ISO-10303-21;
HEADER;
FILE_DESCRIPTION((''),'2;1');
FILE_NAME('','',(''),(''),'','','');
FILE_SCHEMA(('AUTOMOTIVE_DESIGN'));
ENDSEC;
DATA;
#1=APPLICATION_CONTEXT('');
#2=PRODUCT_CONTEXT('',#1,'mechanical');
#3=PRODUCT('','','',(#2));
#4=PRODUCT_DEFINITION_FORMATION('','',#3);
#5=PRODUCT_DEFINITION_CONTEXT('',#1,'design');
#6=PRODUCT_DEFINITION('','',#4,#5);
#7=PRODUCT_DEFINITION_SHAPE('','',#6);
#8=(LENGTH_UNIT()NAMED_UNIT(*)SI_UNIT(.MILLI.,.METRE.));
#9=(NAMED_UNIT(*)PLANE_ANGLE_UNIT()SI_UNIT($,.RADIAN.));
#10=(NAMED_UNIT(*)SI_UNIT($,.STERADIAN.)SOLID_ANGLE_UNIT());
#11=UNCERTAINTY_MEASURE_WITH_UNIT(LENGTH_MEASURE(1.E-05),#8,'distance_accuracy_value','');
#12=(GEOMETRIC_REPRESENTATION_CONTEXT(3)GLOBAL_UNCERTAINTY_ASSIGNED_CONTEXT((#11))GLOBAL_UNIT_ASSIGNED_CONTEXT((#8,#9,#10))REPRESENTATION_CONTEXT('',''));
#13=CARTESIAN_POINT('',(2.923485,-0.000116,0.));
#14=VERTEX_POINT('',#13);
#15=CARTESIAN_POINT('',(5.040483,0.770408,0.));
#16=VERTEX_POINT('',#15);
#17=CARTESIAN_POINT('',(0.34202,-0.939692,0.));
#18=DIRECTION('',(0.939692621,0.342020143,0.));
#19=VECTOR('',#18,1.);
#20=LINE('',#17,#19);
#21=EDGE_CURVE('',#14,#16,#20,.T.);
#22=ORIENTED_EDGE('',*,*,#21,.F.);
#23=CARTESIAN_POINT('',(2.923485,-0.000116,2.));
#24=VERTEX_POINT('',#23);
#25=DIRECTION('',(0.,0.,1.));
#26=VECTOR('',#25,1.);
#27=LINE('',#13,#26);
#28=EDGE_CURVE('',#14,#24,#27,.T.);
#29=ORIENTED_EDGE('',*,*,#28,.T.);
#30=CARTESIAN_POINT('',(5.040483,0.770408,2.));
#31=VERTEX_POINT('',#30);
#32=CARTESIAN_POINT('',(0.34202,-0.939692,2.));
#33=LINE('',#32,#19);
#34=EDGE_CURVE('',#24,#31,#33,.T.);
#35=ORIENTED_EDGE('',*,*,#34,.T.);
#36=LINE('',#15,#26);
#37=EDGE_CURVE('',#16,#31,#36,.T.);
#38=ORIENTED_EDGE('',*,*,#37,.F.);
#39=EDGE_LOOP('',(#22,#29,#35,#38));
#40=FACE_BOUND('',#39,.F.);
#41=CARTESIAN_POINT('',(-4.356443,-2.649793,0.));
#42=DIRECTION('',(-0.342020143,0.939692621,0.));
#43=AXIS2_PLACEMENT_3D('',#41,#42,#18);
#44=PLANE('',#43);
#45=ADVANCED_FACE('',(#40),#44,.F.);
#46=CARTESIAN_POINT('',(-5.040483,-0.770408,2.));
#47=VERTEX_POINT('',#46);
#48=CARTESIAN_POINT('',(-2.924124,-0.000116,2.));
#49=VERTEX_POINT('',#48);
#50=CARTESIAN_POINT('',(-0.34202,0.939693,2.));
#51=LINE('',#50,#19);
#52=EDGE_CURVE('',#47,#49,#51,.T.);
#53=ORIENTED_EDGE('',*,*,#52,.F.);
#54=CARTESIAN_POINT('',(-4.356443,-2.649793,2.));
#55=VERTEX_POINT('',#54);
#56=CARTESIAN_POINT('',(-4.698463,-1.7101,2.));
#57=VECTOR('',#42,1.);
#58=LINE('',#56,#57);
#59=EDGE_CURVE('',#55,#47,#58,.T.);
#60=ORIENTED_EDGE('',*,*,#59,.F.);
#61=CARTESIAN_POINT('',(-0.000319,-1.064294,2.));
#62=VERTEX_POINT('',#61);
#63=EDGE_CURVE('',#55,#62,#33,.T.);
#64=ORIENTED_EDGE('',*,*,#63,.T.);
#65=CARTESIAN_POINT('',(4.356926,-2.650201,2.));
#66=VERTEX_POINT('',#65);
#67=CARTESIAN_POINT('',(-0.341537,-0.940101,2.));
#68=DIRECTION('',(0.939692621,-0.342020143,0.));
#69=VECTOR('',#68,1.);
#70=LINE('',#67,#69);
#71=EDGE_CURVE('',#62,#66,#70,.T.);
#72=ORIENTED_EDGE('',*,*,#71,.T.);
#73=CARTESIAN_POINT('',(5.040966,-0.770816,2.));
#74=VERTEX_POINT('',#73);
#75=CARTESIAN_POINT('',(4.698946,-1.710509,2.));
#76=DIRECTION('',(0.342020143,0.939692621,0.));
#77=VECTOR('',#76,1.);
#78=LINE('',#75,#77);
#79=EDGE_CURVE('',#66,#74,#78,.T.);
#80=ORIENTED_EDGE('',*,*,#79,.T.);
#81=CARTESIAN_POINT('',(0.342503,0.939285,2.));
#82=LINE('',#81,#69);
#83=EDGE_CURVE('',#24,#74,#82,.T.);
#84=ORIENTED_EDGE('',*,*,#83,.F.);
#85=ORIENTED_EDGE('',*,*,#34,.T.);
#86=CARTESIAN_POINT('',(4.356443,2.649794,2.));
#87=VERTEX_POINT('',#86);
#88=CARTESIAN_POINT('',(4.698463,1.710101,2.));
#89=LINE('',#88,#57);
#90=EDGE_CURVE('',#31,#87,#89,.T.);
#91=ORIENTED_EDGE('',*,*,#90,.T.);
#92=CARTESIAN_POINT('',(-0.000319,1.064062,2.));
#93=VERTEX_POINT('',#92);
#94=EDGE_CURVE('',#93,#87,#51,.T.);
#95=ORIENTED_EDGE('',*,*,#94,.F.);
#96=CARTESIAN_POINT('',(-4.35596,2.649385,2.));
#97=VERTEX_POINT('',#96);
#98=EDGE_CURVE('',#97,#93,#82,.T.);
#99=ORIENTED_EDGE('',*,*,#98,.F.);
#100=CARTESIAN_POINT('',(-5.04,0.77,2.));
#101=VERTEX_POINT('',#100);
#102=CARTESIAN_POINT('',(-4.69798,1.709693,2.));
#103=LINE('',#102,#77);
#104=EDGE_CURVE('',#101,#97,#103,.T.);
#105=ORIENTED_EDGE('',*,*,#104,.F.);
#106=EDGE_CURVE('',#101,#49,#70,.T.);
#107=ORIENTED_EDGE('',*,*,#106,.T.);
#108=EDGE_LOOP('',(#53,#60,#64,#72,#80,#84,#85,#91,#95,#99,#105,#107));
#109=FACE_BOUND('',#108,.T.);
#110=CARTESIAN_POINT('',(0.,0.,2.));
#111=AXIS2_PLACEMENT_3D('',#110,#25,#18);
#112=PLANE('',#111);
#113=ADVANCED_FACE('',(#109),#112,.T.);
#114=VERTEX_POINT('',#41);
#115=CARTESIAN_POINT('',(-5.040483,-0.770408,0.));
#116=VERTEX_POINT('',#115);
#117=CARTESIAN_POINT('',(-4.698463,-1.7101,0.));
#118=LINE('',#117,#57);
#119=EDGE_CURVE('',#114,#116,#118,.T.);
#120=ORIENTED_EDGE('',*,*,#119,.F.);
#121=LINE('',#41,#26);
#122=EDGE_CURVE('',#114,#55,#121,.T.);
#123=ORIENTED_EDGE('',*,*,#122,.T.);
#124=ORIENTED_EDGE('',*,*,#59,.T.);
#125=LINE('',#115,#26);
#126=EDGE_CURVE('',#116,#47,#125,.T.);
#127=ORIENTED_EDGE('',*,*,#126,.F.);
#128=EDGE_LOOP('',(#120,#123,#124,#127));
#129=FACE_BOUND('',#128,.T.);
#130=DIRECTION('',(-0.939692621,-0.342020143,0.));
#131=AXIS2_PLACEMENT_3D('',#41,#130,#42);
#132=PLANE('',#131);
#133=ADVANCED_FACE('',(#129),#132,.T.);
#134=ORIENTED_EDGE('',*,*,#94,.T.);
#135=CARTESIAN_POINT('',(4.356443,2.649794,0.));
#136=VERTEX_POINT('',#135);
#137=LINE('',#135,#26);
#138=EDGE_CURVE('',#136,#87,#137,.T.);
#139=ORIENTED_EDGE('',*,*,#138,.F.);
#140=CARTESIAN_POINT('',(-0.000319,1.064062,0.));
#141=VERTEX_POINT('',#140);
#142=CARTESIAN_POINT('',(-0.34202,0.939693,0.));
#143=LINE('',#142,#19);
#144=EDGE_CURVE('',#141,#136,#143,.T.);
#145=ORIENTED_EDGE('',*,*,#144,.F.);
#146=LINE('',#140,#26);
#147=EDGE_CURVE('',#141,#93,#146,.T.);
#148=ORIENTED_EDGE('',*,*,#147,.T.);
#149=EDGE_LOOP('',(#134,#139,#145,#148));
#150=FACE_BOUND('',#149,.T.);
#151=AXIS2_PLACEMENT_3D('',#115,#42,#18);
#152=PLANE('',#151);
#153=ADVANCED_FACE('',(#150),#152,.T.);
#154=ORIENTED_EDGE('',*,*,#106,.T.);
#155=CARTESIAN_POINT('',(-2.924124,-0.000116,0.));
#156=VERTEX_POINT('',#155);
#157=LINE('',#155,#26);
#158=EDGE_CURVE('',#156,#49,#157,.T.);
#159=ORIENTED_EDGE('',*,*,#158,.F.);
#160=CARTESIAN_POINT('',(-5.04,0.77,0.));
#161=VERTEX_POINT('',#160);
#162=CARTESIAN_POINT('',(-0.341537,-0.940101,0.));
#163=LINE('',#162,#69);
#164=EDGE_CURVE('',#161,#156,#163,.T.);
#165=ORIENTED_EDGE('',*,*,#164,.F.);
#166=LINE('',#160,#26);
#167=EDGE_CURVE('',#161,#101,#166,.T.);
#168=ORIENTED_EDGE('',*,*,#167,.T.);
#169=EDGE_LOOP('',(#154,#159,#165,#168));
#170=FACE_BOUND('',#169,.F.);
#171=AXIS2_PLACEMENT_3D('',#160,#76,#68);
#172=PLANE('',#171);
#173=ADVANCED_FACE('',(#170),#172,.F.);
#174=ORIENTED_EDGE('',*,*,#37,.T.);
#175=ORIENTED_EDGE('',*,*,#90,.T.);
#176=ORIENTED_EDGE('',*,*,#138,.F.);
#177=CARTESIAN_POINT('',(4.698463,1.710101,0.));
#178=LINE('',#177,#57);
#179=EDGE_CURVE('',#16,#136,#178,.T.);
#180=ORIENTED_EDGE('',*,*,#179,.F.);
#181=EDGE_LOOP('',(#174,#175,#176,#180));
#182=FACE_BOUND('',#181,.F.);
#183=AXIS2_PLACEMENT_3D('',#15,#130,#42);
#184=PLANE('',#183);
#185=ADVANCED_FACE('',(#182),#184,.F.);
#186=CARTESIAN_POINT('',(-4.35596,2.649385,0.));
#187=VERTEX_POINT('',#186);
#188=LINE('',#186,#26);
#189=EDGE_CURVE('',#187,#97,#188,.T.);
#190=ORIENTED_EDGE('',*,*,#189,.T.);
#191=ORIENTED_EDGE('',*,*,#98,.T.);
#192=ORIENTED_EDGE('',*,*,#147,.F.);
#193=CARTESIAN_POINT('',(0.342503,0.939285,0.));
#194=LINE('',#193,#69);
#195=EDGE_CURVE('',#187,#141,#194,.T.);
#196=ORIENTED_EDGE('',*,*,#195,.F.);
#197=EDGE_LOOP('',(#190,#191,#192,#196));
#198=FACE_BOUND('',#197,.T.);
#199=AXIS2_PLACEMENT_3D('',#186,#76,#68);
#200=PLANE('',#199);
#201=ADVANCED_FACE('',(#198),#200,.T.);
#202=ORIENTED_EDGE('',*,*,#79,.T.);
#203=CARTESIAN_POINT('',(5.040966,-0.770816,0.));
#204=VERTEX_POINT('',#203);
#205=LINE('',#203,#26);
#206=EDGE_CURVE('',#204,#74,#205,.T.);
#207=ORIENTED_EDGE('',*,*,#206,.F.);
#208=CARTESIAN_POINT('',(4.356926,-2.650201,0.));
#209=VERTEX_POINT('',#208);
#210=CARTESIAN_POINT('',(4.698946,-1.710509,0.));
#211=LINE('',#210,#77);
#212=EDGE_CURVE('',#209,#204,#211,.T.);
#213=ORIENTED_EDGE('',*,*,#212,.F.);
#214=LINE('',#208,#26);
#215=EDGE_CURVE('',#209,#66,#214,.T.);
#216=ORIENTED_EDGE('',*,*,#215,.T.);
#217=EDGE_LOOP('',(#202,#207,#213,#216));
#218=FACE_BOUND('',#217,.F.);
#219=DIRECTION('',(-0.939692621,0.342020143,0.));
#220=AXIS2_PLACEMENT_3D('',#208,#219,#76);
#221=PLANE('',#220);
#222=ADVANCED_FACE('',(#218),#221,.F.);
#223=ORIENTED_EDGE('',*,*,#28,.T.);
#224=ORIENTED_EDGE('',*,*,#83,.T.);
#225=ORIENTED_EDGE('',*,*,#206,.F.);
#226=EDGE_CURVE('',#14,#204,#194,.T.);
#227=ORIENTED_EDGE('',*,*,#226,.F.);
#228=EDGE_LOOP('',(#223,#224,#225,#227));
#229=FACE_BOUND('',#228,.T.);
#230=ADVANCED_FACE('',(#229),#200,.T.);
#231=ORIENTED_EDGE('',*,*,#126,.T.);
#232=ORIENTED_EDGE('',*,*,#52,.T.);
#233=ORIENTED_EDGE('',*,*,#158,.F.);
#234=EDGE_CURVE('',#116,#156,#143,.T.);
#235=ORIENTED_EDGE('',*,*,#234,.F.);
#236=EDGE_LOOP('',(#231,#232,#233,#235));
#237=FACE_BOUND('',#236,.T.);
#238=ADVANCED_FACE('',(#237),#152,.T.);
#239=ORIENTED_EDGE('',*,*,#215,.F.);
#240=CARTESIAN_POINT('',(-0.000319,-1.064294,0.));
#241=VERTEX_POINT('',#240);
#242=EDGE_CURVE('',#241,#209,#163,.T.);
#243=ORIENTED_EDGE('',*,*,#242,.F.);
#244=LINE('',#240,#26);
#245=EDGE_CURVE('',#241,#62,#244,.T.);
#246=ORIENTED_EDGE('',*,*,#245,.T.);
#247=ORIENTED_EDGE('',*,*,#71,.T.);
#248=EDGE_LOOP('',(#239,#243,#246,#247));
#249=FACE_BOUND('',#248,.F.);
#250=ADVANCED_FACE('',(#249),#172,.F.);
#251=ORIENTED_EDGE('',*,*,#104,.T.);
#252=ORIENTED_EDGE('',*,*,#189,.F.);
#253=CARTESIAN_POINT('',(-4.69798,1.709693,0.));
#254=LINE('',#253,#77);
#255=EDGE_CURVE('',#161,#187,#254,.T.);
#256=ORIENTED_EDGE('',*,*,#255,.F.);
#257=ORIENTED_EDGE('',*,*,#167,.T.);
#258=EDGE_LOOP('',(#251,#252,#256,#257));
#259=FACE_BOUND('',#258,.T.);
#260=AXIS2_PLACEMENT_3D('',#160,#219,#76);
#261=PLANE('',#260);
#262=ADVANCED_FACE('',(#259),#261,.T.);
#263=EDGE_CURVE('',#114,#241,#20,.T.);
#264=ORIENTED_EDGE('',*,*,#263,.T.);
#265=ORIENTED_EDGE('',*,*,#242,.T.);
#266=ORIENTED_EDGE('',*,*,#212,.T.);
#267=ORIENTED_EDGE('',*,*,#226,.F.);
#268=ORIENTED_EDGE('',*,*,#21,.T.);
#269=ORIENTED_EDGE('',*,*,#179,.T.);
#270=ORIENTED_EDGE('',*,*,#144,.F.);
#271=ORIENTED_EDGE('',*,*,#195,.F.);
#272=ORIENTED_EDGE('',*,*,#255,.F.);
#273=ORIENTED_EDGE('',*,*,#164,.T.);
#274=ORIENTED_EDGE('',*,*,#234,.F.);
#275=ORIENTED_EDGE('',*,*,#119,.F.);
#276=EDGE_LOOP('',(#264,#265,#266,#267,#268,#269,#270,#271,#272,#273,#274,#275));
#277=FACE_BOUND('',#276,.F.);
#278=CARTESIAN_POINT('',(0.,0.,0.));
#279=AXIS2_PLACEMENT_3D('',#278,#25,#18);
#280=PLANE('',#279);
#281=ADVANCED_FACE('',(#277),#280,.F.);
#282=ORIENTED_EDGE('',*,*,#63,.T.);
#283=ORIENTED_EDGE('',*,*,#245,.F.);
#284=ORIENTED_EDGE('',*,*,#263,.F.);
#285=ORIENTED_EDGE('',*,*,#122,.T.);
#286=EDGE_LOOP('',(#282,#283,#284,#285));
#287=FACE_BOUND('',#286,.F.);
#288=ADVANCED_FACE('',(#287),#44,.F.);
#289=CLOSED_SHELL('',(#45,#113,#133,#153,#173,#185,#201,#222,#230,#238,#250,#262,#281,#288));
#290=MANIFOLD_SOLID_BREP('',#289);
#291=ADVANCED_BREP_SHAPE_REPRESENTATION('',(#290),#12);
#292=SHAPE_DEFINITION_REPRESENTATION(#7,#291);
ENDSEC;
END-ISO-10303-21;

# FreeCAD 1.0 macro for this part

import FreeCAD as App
import Part
import Sketcher

V = App.Vector
Q = App.Units.Quantity

doc = App.newDocument("Part")
body = doc.addObject("PartDesign::Body", "Body")

sketch1 = doc.addObject("Sketcher::SketchObject", "Sketch")
body.addObject(sketch1)
sketch1.AttachmentSupport = (doc.XY_Plane, [""])
sketch1.MapMode = "FlatFace"
sketch1.addGeometry([
    Part.LineSegment(V(0, 2, 0), V(0, 0, 0)),
    Part.LineSegment(V(0, 0, 0), V(10, 0, 0)),
    Part.LineSegment(V(10, 0, 0), V(10, 2, 0)),
    Part.LineSegment(V(10, 2, 0), V(0, 2, 0)),
], False)
sketch1.addConstraint([
    Sketcher.Constraint("Coincident", 0, 2, 1, 1),
    Sketcher.Constraint("Coincident", 1, 2, 2, 1),
    Sketcher.Constraint("Coincident", 2, 2, 3, 1),
    Sketcher.Constraint("Coincident", 3, 2, 0, 1),
    Sketcher.Constraint("Vertical", 0),
    Sketcher.Constraint("Horizontal", 1),
    Sketcher.Constraint("Vertical", 2),
    Sketcher.Constraint("Horizontal", 3),
    Sketcher.Constraint("Coincident", 0, 2, -1, 1),
    Sketcher.Constraint("DistanceX", 1, 1, 1, 2, Q("10 mm")),
    Sketcher.Constraint("DistanceY", 0, 2, 0, 1, Q("2 mm")),
])
pad1 = doc.addObject("PartDesign::Pad", "Pad")
body.addObject(pad1)
pad1.Profile = sketch1
pad1.Length = 2
body2 = doc.addObject("PartDesign::Body", "Body001")
doc.recompute()

body.Placement = App.Placement(V(0.643557, -1.649793, 0), App.Rotation(V(0, 0, 1), 20))
boolean = doc.addObject("PartDesign::Boolean", "Boolean")
body2.addObject(boolean)
boolean.Type = "Fuse"
boolean.addObjects([body])
body3 = doc.addObject("PartDesign::Body", "Body002")

sketch2 = doc.addObject("Sketcher::SketchObject", "Sketch001")
body3.addObject(sketch2)
sketch2.AttachmentSupport = (doc.getObject("XY_Plane002"), [""])
sketch2.MapMode = "FlatFace"
sketch2.addGeometry([
    Part.LineSegment(V(0, 2, 0), V(0, 0, 0)),
    Part.LineSegment(V(0, 0, 0), V(10, 0, 0)),
    Part.LineSegment(V(10, 0, 0), V(10, 2, 0)),
    Part.LineSegment(V(10, 2, 0), V(0, 2, 0)),
], False)
sketch2.addConstraint([
    Sketcher.Constraint("Coincident", 0, 2, 1, 1),
    Sketcher.Constraint("Coincident", 1, 2, 2, 1),
    Sketcher.Constraint("Coincident", 2, 2, 3, 1),
    Sketcher.Constraint("Coincident", 3, 2, 0, 1),
    Sketcher.Constraint("Vertical", 0),
    Sketcher.Constraint("Horizontal", 1),
    Sketcher.Constraint("Vertical", 2),
    Sketcher.Constraint("Horizontal", 3),
    Sketcher.Constraint("Coincident", 0, 2, -1, 1),
    Sketcher.Constraint("DistanceX", 1, 1, 1, 2, Q("10 mm")),
    Sketcher.Constraint("DistanceY", 0, 2, 0, 1, Q("2 mm")),
])
pad2 = doc.addObject("PartDesign::Pad", "Pad001")
body3.addObject(pad2)
pad2.Profile = sketch2
pad2.Length = 2
body4 = doc.addObject("PartDesign::Body", "Body003")
doc.recompute()

body3.Placement = App.Placement(V(-0.04, 1.77, 0), App.Rotation(V(0, 0, -1), 20))
boolean2 = doc.addObject("PartDesign::Boolean", "Boolean001")
body4.addObject(boolean2)
boolean2.Type = "Fuse"
boolean2.addObjects([body3])
doc.recompute()

boolean3 = doc.addObject("PartDesign::Boolean", "Boolean002")
body4.addObject(boolean3)
boolean3.Type = "Fuse"
boolean3.addObjects([body2])
body5 = doc.addObject("PartDesign::Body", "Body004")
doc.recompute()

body4.Placement = App.Placement(V(-5, -1, 0), App.Rotation(V(0, 0, 1), 0))
boolean4 = doc.addObject("PartDesign::Boolean", "Boolean003")
body5.addObject(boolean4)
boolean4.Type = "Fuse"
boolean4.addObjects([body4])

doc.recompute()
